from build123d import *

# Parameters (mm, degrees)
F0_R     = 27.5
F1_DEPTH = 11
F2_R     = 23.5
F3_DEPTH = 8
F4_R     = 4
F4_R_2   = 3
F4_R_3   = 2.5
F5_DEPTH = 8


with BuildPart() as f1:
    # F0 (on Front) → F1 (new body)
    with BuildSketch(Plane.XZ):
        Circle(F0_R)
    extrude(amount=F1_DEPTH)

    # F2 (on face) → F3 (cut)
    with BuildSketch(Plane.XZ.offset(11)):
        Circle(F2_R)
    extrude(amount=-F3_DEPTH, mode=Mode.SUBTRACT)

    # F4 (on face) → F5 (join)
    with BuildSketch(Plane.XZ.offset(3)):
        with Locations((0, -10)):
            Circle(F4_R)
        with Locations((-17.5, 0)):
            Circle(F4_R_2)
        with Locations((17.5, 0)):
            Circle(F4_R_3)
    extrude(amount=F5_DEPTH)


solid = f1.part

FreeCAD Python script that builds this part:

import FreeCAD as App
import Part
import Sketcher

V = App.Vector
Q = App.Units.Quantity

doc = App.newDocument("Part")
params = doc.addObject("Spreadsheet::Sheet", "Params")
for row, (alias, value) in enumerate([
    ("sketch1_diameter", "55 mm"),
    ("pad1_length", "11 mm"),
    ("sketch2_diameter", "47 mm"),
    ("pocket1_length", "8 mm"),
    ("sketch3_diameter", "8 mm"),
    ("sketch3_diameter2", "6 mm"),
    ("sketch3_diameter3", "5 mm"),
    ("pad2_length", "8 mm"),
], start=1):
    params.set(f"A{row}", alias)
    params.set(f"B{row}", "=" + value)
    params.setAlias(f"B{row}", alias)

body = doc.addObject("PartDesign::Body", "Body")

# Sketch on XZ plane
sketch1 = body.newObject("Sketcher::SketchObject", "Sketch")
sketch1.AttachmentSupport = (doc.getObject("XZ_Plane"), [""])
sketch1.MapMode = "FlatFace"
sketch1.addGeometry(Part.Circle(V(0, 0, 0), V(0, 0, 1), 28), False)
sketch1.addConstraint(Sketcher.Constraint("Coincident", 0, 3, -1, 1))
sketch1.addConstraint(Sketcher.Constraint("Diameter", 0, Q("55 mm")))
sketch1.setExpression("Constraints[1]", "Params.sketch1_diameter")
pad1 = body.newObject("PartDesign::Pad", "Pad")
pad1.Profile = sketch1
pad1.setExpression("Length", "Params.pad1_length")

# Sketch on XZ plane
sketch2 = body.newObject("Sketcher::SketchObject", "Sketch001")
sketch2.AttachmentSupport = (doc.getObject("XZ_Plane"), [""])
sketch2.MapMode = "FlatFace"
sketch2.AttachmentOffset = App.Placement(V(0, 0, 11), App.Rotation())
sketch2.addGeometry(Part.Circle(V(0, 0, 0), V(0, 0, 1), 24), False)
sketch2.addConstraint(Sketcher.Constraint("Coincident", 0, 3, -1, 1))
sketch2.addConstraint(Sketcher.Constraint("Diameter", 0, Q("47 mm")))
sketch2.setExpression("Constraints[1]", "Params.sketch2_diameter")
pocket1 = body.newObject("PartDesign::Pocket", "Pocket")
pocket1.Profile = sketch2
pocket1.setExpression("Length", "Params.pocket1_length")

# Sketch on XZ plane
sketch3 = body.newObject("Sketcher::SketchObject", "Sketch002")
sketch3.AttachmentSupport = (doc.getObject("XZ_Plane"), [""])
sketch3.MapMode = "FlatFace"
sketch3.AttachmentOffset = App.Placement(V(0, 0, 3), App.Rotation())
sketch3.addGeometry(Part.Circle(V(0, -10, 0), V(0, 0, 1), 4), False)
sketch3.addGeometry(Part.Circle(V(-17.5, 0, 0), V(0, 0, 1), 3), False)
sketch3.addGeometry(Part.Circle(V(17.5, 0, 0), V(0, 0, 1), 2.5), False)
sketch3.addConstraint(Sketcher.Constraint("Symmetric", 1, 3, 2, 3, -1, 1))
sketch3.addConstraint(Sketcher.Constraint("PointOnObject", 0, 3, -2))
sketch3.addConstraint(Sketcher.Constraint("PointOnObject", 1, 3, -1))
sketch3.addConstraint(Sketcher.Constraint("Diameter", 0, Q("8 mm")))
sketch3.addConstraint(Sketcher.Constraint("Diameter", 1, Q("6 mm")))
sketch3.addConstraint(Sketcher.Constraint("Diameter", 2, Q("5 mm")))
sketch3.addConstraint(Sketcher.Constraint("DistanceY", 0, 3, -1, 1, Q("10 mm")))
sketch3.addConstraint(Sketcher.Constraint("DistanceX", 1, 3, 2, 3, Q("35 mm")))
sketch3.setExpression("Constraints[3]", "Params.sketch3_diameter")
sketch3.setExpression("Constraints[4]", "Params.sketch3_diameter2")
sketch3.setExpression("Constraints[5]", "Params.sketch3_diameter3")
pad2 = body.newObject("PartDesign::Pad", "Pad001")
pad2.Profile = sketch3
pad2.setExpression("Length", "Params.pad2_length")

doc.recompute()
